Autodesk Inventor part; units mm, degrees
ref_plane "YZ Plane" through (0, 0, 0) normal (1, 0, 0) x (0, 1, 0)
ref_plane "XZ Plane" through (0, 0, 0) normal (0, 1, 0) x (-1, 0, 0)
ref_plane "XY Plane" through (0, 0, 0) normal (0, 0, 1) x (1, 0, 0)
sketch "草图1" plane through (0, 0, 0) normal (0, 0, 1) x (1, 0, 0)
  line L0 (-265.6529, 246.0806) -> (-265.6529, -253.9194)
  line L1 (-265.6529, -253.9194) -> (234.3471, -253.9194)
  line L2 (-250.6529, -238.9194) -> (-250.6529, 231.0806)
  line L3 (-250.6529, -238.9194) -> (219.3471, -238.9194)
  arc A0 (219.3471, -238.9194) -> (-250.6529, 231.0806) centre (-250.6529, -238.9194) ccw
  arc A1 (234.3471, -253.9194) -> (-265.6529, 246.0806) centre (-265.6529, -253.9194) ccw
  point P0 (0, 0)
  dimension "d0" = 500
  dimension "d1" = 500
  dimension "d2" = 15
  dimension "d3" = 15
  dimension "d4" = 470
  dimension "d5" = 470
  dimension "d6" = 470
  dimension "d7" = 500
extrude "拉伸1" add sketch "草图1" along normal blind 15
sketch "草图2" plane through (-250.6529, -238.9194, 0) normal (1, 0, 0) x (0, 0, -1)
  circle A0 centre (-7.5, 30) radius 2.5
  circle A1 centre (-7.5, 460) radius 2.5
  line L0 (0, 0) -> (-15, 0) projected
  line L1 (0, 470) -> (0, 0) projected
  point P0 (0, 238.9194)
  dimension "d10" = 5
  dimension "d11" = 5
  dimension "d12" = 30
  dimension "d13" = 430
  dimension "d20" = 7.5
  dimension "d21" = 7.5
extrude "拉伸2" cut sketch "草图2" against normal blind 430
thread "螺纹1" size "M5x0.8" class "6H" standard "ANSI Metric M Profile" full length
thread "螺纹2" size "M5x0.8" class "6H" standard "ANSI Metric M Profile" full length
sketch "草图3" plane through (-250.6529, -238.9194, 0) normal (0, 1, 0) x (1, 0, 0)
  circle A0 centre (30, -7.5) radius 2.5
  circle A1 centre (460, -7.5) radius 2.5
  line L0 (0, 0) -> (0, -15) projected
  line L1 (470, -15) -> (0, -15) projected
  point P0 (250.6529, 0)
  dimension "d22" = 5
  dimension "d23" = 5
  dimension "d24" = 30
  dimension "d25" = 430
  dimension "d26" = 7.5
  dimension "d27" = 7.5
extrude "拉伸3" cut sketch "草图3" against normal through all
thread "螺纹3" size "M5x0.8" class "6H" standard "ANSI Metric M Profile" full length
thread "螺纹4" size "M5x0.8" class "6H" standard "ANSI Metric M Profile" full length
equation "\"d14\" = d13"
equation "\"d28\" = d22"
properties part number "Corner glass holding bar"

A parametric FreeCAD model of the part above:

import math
import FreeCAD as App
import Part
import Sketcher
from FreeCAD import Vector
Q = App.Units.Quantity

doc = App.newDocument("Part")
params = doc.addObject("Spreadsheet::Sheet", "Params")
for row, (alias, value) in enumerate([
    ("sketch1_radius", "500 mm"),
    ("sketch1_radius2", "470 mm"),
    ("pad1_length", "15 mm"),
    ("sketch2_diameter", "5 mm"),
    ("pocket1_length", "430 mm"),
    ("sketch3_diameter", "5 mm"),
], start=1):
    params.set(f"A{row}", alias)
    params.set(f"B{row}", "=" + value)
    params.setAlias(f"B{row}", alias)

body = doc.addObject("PartDesign::Body", "Body")

# Sketch on XY plane
sketch1 = doc.addObject("Sketcher::SketchObject", "Sketch")
body.addObject(sketch1)
sketch1.AttachmentSupport = (doc.XY_Plane, [""])
sketch1.MapMode = "FlatFace"
sketch1.addGeometry(Part.ArcOfCircle(Part.Circle(Vector(-266, -254, 0), Vector(0, 0, 1), 500), math.radians(0), math.radians(90)), False)
sketch1.addGeometry(Part.LineSegment(Vector(-266, 246, 0), Vector(-266, -254, 0)), False)
sketch1.addGeometry(Part.LineSegment(Vector(-266, -254, 0), Vector(234, -254, 0)), False)
sketch1.addGeometry(Part.LineSegment(Vector(219, -239, 0), Vector(-251, -239, 0)), False)
sketch1.addGeometry(Part.LineSegment(Vector(-251, -239, 0), Vector(-251, 231, 0)), False)
sketch1.addGeometry(Part.ArcOfCircle(Part.Circle(Vector(-251, -239, 0), Vector(0, 0, 1), 470), math.radians(0), math.radians(90)), False)
sketch1.addConstraint(Sketcher.Constraint("Coincident", 0, 2, 1, 1))
sketch1.addConstraint(Sketcher.Constraint("Coincident", 1, 2, 2, 1))
sketch1.addConstraint(Sketcher.Constraint("Coincident", 2, 2, 0, 1))
sketch1.addConstraint(Sketcher.Constraint("Coincident", 3, 2, 4, 1))
sketch1.addConstraint(Sketcher.Constraint("Coincident", 4, 2, 5, 2))
sketch1.addConstraint(Sketcher.Constraint("Coincident", 5, 1, 3, 1))
sketch1.addConstraint(Sketcher.Constraint("Vertical", 1))
sketch1.addConstraint(Sketcher.Constraint("Horizontal", 2))
sketch1.addConstraint(Sketcher.Constraint("Horizontal", 3))
sketch1.addConstraint(Sketcher.Constraint("Vertical", 4))
sketch1.addConstraint(Sketcher.Constraint("Coincident", 1, 2, 0, 3))
sketch1.addConstraint(Sketcher.Constraint("Coincident", 3, 2, 5, 3))
sketch1.addConstraint(Sketcher.Constraint("Radius", 0, Q("500 mm")))
sketch1.addConstraint(Sketcher.Constraint("Radius", 5, Q("470 mm")))
sketch1.addConstraint(Sketcher.Constraint("DistanceX", 0, 3, 5, 3, Q("15 mm")))
sketch1.addConstraint(Sketcher.Constraint("DistanceY", 0, 3, 5, 3, Q("15 mm")))
sketch1.addConstraint(Sketcher.Constraint("DistanceX", 0, 3, -1, 1, Q("265.653 mm")))
sketch1.addConstraint(Sketcher.Constraint("DistanceY", 0, 3, -1, 1, Q("253.9194 mm")))
sketch1.setExpression("Constraints[12]", "Params.sketch1_radius")
sketch1.setExpression("Constraints[13]", "Params.sketch1_radius2")
pad1 = doc.addObject("PartDesign::Pad", "Pad")
body.addObject(pad1)
pad1.Profile = sketch1
pad1.setExpression("Length", "Params.pad1_length")

# Sketch on YZ plane
sketch2 = doc.addObject("Sketcher::SketchObject", "Sketch001")
body.addObject(sketch2)
sketch2.AttachmentSupport = (doc.YZ_Plane, [""])
sketch2.MapMode = "FlatFace"
sketch2.AttachmentOffset = App.Placement(Vector(0, 0, -250.6529), App.Rotation())
sketch2.addGeometry(Part.Circle(Vector(-208.9, 7.5, 0), Vector(0, 0, 1), 2.5), False)
sketch2.addGeometry(Part.Circle(Vector(221.1, 7.5, 0), Vector(0, 0, 1), 2.5), False)
sketch2.addConstraint(Sketcher.Constraint("Equal", 0, 1))
sketch2.addConstraint(Sketcher.Constraint("Horizontal", 0, 3, 1, 3))
sketch2.addConstraint(Sketcher.Constraint("Diameter", 0, Q("5 mm")))
sketch2.addConstraint(Sketcher.Constraint("DistanceX", 0, 3, 1, 3, Q("430 mm")))
sketch2.addConstraint(Sketcher.Constraint("DistanceY", -1, 1, 0, 3, Q("7.5 mm")))
sketch2.addConstraint(Sketcher.Constraint("DistanceX", 0, 3, -1, 1, Q("208.9194 mm")))
sketch2.setExpression("Constraints[2]", "Params.sketch2_diameter")
pocket1 = doc.addObject("PartDesign::Pocket", "Pocket")
body.addObject(pocket1)
pocket1.Profile = sketch2
pocket1.setExpression("Length", "Params.pocket1_length")

# Sketch on XZ plane
sketch3 = doc.addObject("Sketcher::SketchObject", "Sketch002")
body.addObject(sketch3)
sketch3.AttachmentSupport = (doc.XZ_Plane, [""])
sketch3.MapMode = "FlatFace"
sketch3.AttachmentOffset = App.Placement(Vector(0, 0, 238.9194), App.Rotation())
sketch3.addGeometry(Part.Circle(Vector(-220.7, 7.5, 0), Vector(0, 0, 1), 2.5), False)
sketch3.addGeometry(Part.Circle(Vector(209.3, 7.5, 0), Vector(0, 0, 1), 2.5), False)
sketch3.addConstraint(Sketcher.Constraint("Equal", 0, 1))
sketch3.addConstraint(Sketcher.Constraint("Horizontal", 0, 3, 1, 3))
sketch3.addConstraint(Sketcher.Constraint("Diameter", 0, Q("5 mm")))
sketch3.addConstraint(Sketcher.Constraint("DistanceX", 0, 3, 1, 3, Q("430 mm")))
sketch3.addConstraint(Sketcher.Constraint("DistanceY", -1, 1, 0, 3, Q("7.5 mm")))
sketch3.addConstraint(Sketcher.Constraint("DistanceX", 0, 3, -1, 1, Q("220.653 mm")))
sketch3.setExpression("Constraints[2]", "Params.sketch3_diameter")
pocket2 = doc.addObject("PartDesign::Pocket", "Pocket001")
body.addObject(pocket2)
pocket2.Profile = sketch3
pocket2.Type = "ThroughAll"
pocket2.Reversed = True

doc.recompute()
